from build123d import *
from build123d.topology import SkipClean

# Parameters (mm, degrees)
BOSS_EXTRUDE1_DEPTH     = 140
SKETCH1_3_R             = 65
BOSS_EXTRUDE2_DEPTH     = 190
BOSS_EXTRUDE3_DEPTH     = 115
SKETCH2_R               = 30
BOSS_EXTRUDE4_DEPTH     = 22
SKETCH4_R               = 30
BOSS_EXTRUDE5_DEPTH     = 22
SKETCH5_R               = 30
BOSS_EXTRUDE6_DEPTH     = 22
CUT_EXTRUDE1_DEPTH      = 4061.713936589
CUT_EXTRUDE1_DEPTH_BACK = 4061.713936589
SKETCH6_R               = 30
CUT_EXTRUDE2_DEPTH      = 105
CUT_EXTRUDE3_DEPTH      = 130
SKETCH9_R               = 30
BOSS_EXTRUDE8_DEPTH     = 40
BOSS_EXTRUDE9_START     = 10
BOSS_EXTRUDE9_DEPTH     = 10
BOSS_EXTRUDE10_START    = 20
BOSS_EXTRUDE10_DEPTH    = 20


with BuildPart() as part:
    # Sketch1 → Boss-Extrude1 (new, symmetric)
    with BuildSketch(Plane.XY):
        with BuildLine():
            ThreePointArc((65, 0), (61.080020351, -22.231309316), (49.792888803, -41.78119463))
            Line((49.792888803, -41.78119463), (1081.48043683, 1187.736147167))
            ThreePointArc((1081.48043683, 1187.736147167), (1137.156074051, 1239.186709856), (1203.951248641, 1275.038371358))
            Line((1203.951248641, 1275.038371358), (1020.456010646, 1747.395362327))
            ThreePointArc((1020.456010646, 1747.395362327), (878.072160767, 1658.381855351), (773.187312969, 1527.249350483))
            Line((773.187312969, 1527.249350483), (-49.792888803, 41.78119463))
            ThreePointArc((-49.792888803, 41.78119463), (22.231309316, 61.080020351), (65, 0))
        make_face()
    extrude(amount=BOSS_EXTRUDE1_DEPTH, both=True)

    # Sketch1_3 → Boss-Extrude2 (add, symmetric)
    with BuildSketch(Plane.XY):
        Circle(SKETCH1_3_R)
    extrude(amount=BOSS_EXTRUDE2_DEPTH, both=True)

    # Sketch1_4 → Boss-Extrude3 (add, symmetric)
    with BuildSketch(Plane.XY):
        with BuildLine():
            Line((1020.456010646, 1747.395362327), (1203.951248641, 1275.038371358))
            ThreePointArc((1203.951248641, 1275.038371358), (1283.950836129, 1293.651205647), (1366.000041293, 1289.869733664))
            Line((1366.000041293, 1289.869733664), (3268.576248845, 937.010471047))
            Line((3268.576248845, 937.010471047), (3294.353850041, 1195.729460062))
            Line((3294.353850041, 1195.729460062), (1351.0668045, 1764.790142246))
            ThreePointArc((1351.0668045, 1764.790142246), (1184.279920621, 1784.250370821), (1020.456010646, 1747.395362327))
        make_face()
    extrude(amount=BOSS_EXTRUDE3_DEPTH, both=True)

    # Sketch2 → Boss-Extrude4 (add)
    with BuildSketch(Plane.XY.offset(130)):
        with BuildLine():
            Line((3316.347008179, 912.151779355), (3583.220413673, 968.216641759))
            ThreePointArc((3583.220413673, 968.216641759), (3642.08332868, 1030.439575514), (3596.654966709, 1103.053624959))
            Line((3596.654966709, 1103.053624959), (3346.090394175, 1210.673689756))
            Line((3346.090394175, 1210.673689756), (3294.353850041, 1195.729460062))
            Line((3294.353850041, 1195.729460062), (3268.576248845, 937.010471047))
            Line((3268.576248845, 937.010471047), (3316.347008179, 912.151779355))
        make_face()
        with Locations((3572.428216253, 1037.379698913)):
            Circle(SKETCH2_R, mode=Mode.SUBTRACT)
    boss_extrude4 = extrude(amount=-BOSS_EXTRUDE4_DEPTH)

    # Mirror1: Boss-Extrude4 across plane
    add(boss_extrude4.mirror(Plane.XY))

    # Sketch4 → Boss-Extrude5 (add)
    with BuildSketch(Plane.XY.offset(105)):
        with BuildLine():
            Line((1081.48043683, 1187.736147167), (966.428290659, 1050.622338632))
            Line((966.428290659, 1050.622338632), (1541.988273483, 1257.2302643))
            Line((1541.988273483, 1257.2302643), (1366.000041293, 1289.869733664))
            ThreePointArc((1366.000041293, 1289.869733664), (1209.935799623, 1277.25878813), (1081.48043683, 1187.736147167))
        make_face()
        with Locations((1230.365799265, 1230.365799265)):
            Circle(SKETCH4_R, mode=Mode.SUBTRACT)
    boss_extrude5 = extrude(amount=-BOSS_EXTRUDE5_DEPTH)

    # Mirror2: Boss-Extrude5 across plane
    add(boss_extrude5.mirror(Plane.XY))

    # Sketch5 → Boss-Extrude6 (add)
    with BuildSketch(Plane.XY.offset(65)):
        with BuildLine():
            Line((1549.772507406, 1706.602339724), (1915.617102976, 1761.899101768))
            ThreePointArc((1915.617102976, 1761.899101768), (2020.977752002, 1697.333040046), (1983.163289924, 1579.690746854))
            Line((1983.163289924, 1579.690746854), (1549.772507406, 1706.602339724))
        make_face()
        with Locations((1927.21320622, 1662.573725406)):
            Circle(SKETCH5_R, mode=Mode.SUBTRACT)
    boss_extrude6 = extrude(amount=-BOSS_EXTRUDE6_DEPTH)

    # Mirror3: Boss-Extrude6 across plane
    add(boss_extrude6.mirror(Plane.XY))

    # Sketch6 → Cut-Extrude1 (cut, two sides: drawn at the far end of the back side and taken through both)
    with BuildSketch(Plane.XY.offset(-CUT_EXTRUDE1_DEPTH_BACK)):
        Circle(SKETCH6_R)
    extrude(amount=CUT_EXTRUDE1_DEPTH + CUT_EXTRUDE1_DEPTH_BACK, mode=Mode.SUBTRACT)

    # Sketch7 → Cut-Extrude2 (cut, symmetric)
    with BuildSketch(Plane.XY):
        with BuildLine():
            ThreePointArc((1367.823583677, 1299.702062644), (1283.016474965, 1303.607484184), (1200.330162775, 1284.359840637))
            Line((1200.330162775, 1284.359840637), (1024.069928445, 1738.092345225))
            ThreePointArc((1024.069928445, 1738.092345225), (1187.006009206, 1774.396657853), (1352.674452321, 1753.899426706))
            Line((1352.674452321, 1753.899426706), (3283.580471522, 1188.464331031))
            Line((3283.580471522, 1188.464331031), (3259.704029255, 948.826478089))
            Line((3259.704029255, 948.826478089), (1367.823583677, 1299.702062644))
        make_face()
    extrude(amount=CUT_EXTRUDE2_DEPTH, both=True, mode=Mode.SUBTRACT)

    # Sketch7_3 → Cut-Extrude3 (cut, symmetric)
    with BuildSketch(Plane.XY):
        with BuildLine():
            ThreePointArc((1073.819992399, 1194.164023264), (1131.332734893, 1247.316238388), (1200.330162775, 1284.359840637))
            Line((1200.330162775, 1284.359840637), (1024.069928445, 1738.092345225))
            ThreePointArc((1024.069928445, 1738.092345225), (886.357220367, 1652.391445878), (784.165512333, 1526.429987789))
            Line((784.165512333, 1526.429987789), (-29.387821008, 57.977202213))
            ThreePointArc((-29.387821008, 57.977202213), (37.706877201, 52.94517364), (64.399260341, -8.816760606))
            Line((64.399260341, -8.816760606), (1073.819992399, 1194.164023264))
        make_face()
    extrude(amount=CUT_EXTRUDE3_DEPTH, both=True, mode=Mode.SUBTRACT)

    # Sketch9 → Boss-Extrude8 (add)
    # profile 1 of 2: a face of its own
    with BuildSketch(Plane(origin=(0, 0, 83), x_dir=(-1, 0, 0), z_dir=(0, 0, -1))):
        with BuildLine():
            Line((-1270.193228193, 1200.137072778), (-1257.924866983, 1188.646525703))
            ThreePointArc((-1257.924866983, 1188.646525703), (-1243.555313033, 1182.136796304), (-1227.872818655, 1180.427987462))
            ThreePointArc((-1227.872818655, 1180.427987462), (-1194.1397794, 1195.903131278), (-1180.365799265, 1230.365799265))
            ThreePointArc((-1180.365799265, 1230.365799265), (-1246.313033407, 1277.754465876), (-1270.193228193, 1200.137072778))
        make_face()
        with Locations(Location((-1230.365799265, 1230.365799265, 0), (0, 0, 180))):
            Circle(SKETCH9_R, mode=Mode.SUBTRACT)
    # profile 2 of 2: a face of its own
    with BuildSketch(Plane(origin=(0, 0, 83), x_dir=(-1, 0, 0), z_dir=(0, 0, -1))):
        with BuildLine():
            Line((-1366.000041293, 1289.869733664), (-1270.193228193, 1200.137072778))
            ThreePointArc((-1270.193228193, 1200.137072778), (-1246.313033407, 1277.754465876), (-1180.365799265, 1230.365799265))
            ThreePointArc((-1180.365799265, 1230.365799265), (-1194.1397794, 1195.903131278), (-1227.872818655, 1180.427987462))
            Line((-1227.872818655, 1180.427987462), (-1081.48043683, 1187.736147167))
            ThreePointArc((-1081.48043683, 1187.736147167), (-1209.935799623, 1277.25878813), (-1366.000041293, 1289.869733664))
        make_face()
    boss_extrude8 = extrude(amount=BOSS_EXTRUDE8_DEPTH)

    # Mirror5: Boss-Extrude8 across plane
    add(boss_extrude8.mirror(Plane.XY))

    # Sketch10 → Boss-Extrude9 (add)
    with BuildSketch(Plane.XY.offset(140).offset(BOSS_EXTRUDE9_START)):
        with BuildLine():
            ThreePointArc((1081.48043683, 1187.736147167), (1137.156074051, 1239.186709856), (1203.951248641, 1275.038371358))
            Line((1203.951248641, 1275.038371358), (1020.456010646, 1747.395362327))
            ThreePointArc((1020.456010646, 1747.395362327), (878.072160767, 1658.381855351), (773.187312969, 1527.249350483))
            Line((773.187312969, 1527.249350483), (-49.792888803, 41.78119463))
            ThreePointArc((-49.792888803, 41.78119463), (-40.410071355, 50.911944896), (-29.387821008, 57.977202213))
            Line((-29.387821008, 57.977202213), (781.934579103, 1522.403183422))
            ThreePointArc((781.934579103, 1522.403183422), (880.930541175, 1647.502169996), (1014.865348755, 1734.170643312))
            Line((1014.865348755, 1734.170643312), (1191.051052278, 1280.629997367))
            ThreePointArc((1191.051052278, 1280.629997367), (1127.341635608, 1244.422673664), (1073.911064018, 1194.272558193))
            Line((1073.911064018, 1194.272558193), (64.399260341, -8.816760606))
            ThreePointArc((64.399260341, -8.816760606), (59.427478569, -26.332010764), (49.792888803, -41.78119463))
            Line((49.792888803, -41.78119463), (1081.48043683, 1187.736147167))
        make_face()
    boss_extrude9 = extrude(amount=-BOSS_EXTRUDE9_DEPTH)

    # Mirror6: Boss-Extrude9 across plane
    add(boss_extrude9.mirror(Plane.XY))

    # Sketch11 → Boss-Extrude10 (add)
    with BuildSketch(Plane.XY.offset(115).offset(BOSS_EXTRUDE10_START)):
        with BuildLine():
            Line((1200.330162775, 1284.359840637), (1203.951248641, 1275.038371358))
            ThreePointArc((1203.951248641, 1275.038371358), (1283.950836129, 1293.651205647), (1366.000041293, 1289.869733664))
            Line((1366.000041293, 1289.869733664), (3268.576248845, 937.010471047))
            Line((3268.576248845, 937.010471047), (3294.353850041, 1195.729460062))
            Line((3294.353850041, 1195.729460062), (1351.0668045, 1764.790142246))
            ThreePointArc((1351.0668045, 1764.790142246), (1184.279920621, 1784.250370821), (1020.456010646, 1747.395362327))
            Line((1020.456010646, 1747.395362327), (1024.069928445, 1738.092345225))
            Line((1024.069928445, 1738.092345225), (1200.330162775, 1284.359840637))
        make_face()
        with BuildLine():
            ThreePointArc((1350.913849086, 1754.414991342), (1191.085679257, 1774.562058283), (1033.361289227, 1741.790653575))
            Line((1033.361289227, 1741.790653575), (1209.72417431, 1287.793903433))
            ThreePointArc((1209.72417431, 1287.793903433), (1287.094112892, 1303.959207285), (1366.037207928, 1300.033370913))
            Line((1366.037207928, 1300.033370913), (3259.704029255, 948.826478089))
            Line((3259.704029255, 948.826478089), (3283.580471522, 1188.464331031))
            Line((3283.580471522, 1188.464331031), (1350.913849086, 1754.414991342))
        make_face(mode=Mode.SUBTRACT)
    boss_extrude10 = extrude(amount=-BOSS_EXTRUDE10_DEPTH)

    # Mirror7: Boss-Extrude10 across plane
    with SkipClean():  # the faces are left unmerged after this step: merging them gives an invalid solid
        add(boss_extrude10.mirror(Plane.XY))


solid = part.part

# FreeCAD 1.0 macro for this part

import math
import FreeCAD as App
import Part
import Sketcher

V = App.Vector
Q = App.Units.Quantity

doc = App.newDocument("Part")
body = doc.addObject("PartDesign::Body", "Body")

# Sketch on XY plane
sketch1 = body.newObject("Sketcher::SketchObject", "Sketch")
sketch1.AttachmentSupport = (doc.getObject("XY_Plane"), [""])
sketch1.MapMode = "FlatFace"
sketch1.addGeometry([
    Part.ArcOfCircle(Part.Circle(V(0, 0, 0), V(0, 0, 1), 65), math.radians(-40), math.radians(0)),  # 0
    Part.LineSegment(V(49.792889, -41.781195, 0), V(1081.480437, 1187.736147, 0)),  # 1
    Part.ArcOfCircle(Part.Circle(V(1311.29377, 994.899864, 0), V(0, 0, 1), 300), math.radians(110.965663), math.radians(140)),  # 2
    Part.LineSegment(V(1203.951249, 1275.038371, 0), V(1020.456011, 1747.395362, 0)),  # 3
    Part.ArcOfCircle(Part.Circle(V(1210.55062, 1284.940997, 0), V(0, 0, 1), 500), math.radians(112.345404), math.radians(151.012637)),  # 4
    Part.LineSegment(V(773.187313, 1527.24935, 0), V(-49.792889, 41.781195, 0)),  # 5
    Part.ArcOfCircle(Part.Circle(V(0, 0, 0), V(0, 0, 1), 65), math.radians(0), math.radians(140)),  # 6
], False)
sketch1.addConstraint([
    Sketcher.Constraint("Tangent", 0, 1, 1, 1),
    Sketcher.Constraint("Tangent", 1, 2, 2, 2),
    Sketcher.Constraint("Coincident", 2, 1, 3, 1),
    Sketcher.Constraint("Coincident", 3, 2, 4, 1),
    Sketcher.Constraint("Tangent", 4, 2, 5, 1),
    Sketcher.Constraint("Coincident", 5, 2, 6, 2),
    Sketcher.Constraint("Tangent", 6, 1, 0, 2),
    Sketcher.Constraint("Coincident", 0, 3, -1, 1),
    Sketcher.Constraint("Equal", 0, 6),
    Sketcher.Constraint("PointOnObject", 6, 1, -1),
    Sketcher.Constraint("Radius", 0, Q("65 mm")),
    Sketcher.Constraint("Radius", 2, Q("300 mm")),
    Sketcher.Constraint("Radius", 4, Q("500 mm")),
    Sketcher.Constraint("Angle", 1, Q("50 deg")),
    Sketcher.Constraint("Distance", 1, Q("1605.0209 mm")),
    Sketcher.Constraint("DistanceY", 2, 3, 3, 2, Q("752.495498 mm")),
    Sketcher.Constraint("Distance", 3, Q("506.746119 mm")),
    Sketcher.Constraint("DistanceX", -1, 1, 4, 3, Q("1210.55062 mm")),
    Sketcher.Constraint("DistanceX", -1, 1, 2, 1, Q("1203.951249 mm")),
    Sketcher.Constraint("DistanceX", 5, 2, -1, 1, Q("49.792889 mm")),
])
pad1 = body.newObject("PartDesign::Pad", "Pad")
pad1.Profile = sketch1
pad1.Length = 280
pad1.Midplane = True

# Sketch on XY plane
sketch2 = body.newObject("Sketcher::SketchObject", "Sketch001")
sketch2.AttachmentSupport = (doc.getObject("XY_Plane"), [""])
sketch2.MapMode = "FlatFace"
sketch2.addGeometry(Part.Circle(V(0, 0, 0), V(0, 0, 1), 65), False)
sketch2.addConstraint([
    Sketcher.Constraint("Coincident", 0, 3, -1, 1),
    Sketcher.Constraint("Diameter", 0, Q("130 mm")),
])
pad2 = body.newObject("PartDesign::Pad", "Pad001")
pad2.Profile = sketch2
pad2.Length = 380
pad2.Midplane = True

# Sketch on XY plane
sketch3 = body.newObject("Sketcher::SketchObject", "Sketch002")
sketch3.AttachmentSupport = (doc.getObject("XY_Plane"), [""])
sketch3.MapMode = "FlatFace"
sketch3.addGeometry([
    Part.LineSegment(V(1020.456011, 1747.395362, 0), V(1203.951249, 1275.038371, 0)),  # 0
    Part.ArcOfCircle(Part.Circle(V(1311.29377, 994.899864, 0), V(0, 0, 1), 300), math.radians(79.493082), math.radians(110.965663)),  # 1
    Part.LineSegment(V(1366.000041, 1289.869734, 0), V(3268.576249, 937.010471, 0)),  # 2
    Part.LineSegment(V(3268.576249, 937.010471, 0), V(3294.35385, 1195.72946, 0)),  # 3
    Part.LineSegment(V(3294.35385, 1195.72946, 0), V(1351.066804, 1764.790142, 0)),  # 4
    Part.ArcOfCircle(Part.Circle(V(1210.55062, 1284.940997, 0), V(0, 0, 1), 500), math.radians(73.678171), math.radians(112.345404)),  # 5
], False)
sketch3.addConstraint([
    Sketcher.Constraint("Coincident", 0, 2, 1, 2),
    Sketcher.Constraint("Tangent", 1, 1, 2, 1),
    Sketcher.Constraint("Coincident", 2, 2, 3, 1),
    Sketcher.Constraint("Coincident", 3, 2, 4, 1),
    Sketcher.Constraint("Tangent", 4, 2, 5, 1),
    Sketcher.Constraint("Coincident", 5, 2, 0, 1),
    Sketcher.Constraint("Radius", 1, Q("300 mm")),
    Sketcher.Constraint("Radius", 5, Q("500 mm")),
    Sketcher.Constraint("Distance", 3, Q("260 mm")),
    Sketcher.Constraint("DistanceX", 0, 2, 2, 2, Q("2064.625 mm")),
    Sketcher.Constraint("Distance", 2, Q("1935.0209 mm")),
    Sketcher.Constraint("DistanceY", 2, 2, 0, 2, Q("338.0279 mm")),
    Sketcher.Constraint("DistanceX", 2, 2, 3, 2, Q("25.777601 mm")),
    Sketcher.Constraint("DistanceY", 1, 3, 5, 2, Q("752.495498 mm")),
    Sketcher.Constraint("Distance", 0, Q("506.746119 mm")),
    Sketcher.Constraint("DistanceX", -1, 1, 1, 3, Q("1311.29377 mm")),
    Sketcher.Constraint("DistanceX", -1, 1, 5, 3, Q("1210.55062 mm")),
    Sketcher.Constraint("DistanceY", -1, 1, 0, 2, Q("1275.038371 mm")),
])
pad3 = body.newObject("PartDesign::Pad", "Pad002")
pad3.Profile = sketch3
pad3.Length = 230
pad3.Midplane = True

# Sketch on XY plane
sketch4 = body.newObject("Sketcher::SketchObject", "Sketch003")
sketch4.AttachmentSupport = (doc.getObject("XY_Plane"), [""])
sketch4.MapMode = "FlatFace"
sketch4.AttachmentOffset = App.Placement(V(0, 0, 130), App.Rotation())
sketch4.addGeometry([
    Part.LineSegment(V(3316.347008, 912.151779, 0), V(3583.220414, 968.216642, 0)),  # 0
    Part.ArcOfCircle(Part.Circle(V(3572.428216, 1037.379699, 0), V(0, 0, 1), 70), math.radians(-81.131091), math.radians(69.751259)),  # 1
    Part.LineSegment(V(3596.654967, 1103.053625, 0), V(3346.090394, 1210.67369, 0)),  # 2
    Part.LineSegment(V(3346.090394, 1210.67369, 0), V(3294.35385, 1195.72946, 0)),  # 3
    Part.LineSegment(V(3294.35385, 1195.72946, 0), V(3268.576249, 937.010471, 0)),  # 4
    Part.LineSegment(V(3268.576249, 937.010471, 0), V(3316.347008, 912.151779, 0)),  # 5
    Part.Circle(V(3572.428216, 1037.379699, 0), V(0, 0, 1), 30),  # 6
], False)
sketch4.addConstraint([
    Sketcher.Constraint("Coincident", 0, 2, 1, 1),
    Sketcher.Constraint("Coincident", 1, 2, 2, 1),
    Sketcher.Constraint("Coincident", 2, 2, 3, 1),
    Sketcher.Constraint("Coincident", 3, 2, 4, 1),
    Sketcher.Constraint("Coincident", 4, 2, 5, 1),
    Sketcher.Constraint("Coincident", 5, 2, 0, 1),
    Sketcher.Constraint("Coincident", 6, 3, 1, 3),
    Sketcher.Constraint("Equal", 0, 2),
    Sketcher.Constraint("Equal", 3, 5),
    Sketcher.Constraint("Diameter", 6, Q("60 mm")),
    Sketcher.Constraint("Radius", 1, Q("70 mm")),
    Sketcher.Constraint("Distance", 4, Q("260 mm")),
    Sketcher.Constraint("DistanceY", -1, 1, 1, 3, Q("1037.379699 mm")),
    Sketcher.Constraint("DistanceX", 4, 2, 3, 2, Q("25.777601 mm")),
    Sketcher.Constraint("Distance", 3, Q("53.851648 mm")),
    Sketcher.Constraint("DistanceY", -1, 1, 0, 2, Q("968.216642 mm")),
    Sketcher.Constraint("DistanceY", -1, 1, 2, 2, Q("1210.67369 mm")),
    Sketcher.Constraint("DistanceX", -1, 1, 3, 2, Q("3294.35385 mm")),
    Sketcher.Constraint("DistanceY", -1, 1, 3, 2, Q("1195.72946 mm")),
    Sketcher.Constraint("DistanceX", -1, 1, 5, 2, Q("3316.347008 mm")),
    Sketcher.Constraint("DistanceX", 2, 2, 0, 2, Q("237.130019 mm")),
])
pad4 = body.newObject("PartDesign::Pad", "Pad003")
pad4.Profile = sketch4
pad4.Length = 22
pad4.Reversed = True
doc.recompute()

mirrored = body.newObject("PartDesign::Mirrored", "Mirrored")
mirrored.Originals = [pad4]
mirrored.MirrorPlane = (doc.getObject("XY_Plane"), [""])
body.Tip = mirrored

# Sketch on XY plane
sketch5 = body.newObject("Sketcher::SketchObject", "Sketch004")
sketch5.AttachmentSupport = (doc.getObject("XY_Plane"), [""])
sketch5.MapMode = "FlatFace"
sketch5.AttachmentOffset = App.Placement(V(0, 0, 105), App.Rotation())
sketch5.addGeometry([
    Part.LineSegment(V(1081.480437, 1187.736147, 0), V(966.428291, 1050.622339, 0)),  # 0
    Part.LineSegment(V(966.428291, 1050.622339, 0), V(1541.988273, 1257.230264, 0)),  # 1
    Part.LineSegment(V(1541.988273, 1257.230264, 0), V(1366.000041, 1289.869734, 0)),  # 2
    Part.ArcOfCircle(Part.Circle(V(1311.29377, 994.899864, 0), V(0, 0, 1), 300), math.radians(79.493082), math.radians(140)),  # 3
    Part.Circle(V(1230.365799, 1230.365799, 0), V(0, 0, 1), 30),  # 4
], False)
sketch5.addConstraint([
    Sketcher.Constraint("Coincident", 0, 2, 1, 1),
    Sketcher.Constraint("Coincident", 1, 2, 2, 1),
    Sketcher.Constraint("Tangent", 2, 2, 3, 1),
    Sketcher.Constraint("Tangent", 3, 2, 0, 1),
    Sketcher.Constraint("Equal", 0, 2),
    Sketcher.Constraint("Diameter", 4, Q("60 mm")),
    Sketcher.Constraint("Radius", 3, Q("300 mm")),
    Sketcher.Constraint("Angle", 0, Q("-130 deg")),
    Sketcher.Constraint("DistanceX", -1, 1, 4, 3, Q("1230.365799 mm")),
    Sketcher.Constraint("DistanceY", -1, 1, 4, 3, Q("1230.365799 mm")),
    Sketcher.Constraint("DistanceY", 3, 3, 1, 2, Q("262.3304 mm")),
    Sketcher.Constraint("DistanceX", -1, 1, 3, 3, Q("1311.29377 mm")),
    Sketcher.Constraint("DistanceX", -1, 1, 0, 2, Q("966.428291 mm")),
    Sketcher.Constraint("DistanceY", -1, 1, 0, 2, Q("1050.622339 mm")),
])
pad5 = body.newObject("PartDesign::Pad", "Pad004")
pad5.Profile = sketch5
pad5.Length = 22
pad5.Reversed = True
doc.recompute()

mirrored2 = body.newObject("PartDesign::Mirrored", "Mirrored001")
mirrored2.Originals = [pad5]
mirrored2.MirrorPlane = (doc.getObject("XY_Plane"), [""])
body.Tip = mirrored2

# Sketch on XY plane
sketch6 = body.newObject("Sketcher::SketchObject", "Sketch005")
sketch6.AttachmentSupport = (doc.getObject("XY_Plane"), [""])
sketch6.MapMode = "FlatFace"
sketch6.AttachmentOffset = App.Placement(V(0, 0, 65), App.Rotation())
sketch6.addGeometry([
    Part.LineSegment(V(1915.617103, 1761.899102, 0), V(1549.772507, 1706.60234, 0)),
    Part.LineSegment(V(1549.772507, 1706.60234, 0), V(1983.16329, 1579.690747, 0)),
    Part.ArcOfCircle(Part.Circle(V(1927.213206, 1662.573725, 0), V(0, 0, 1), 100), math.radians(-55.978716), math.radians(96.659059)),
    Part.Circle(V(1927.213206, 1662.573725, 0), V(0, 0, 1), 30),
], False)
sketch6.addConstraint([
    Sketcher.Constraint("Coincident", 0, 2, 1, 1),
    Sketcher.Constraint("Coincident", 1, 2, 2, 1),
    Sketcher.Constraint("Coincident", 2, 2, 0, 1),
    Sketcher.Constraint("Coincident", 3, 3, 2, 3),
    Sketcher.Constraint("Diameter", 3, Q("60 mm")),
    Sketcher.Constraint("Radius", 2, Q("100 mm")),
    Sketcher.Constraint("Distance", 0, Q("370 mm")),
    Sketcher.Constraint("DistanceY", -1, 1, 2, 2, Q("1761.899102 mm")),
    Sketcher.Constraint("DistanceX", 0, 2, 3, 3, Q("377.440699 mm")),
    Sketcher.Constraint("Distance", 1, Q("451.590658 mm")),
    Sketcher.Constraint("DistanceY", -1, 1, 0, 2, Q("1706.60234 mm")),
    Sketcher.Constraint("DistanceX", -1, 1, 1, 2, Q("1983.16329 mm")),
])
pad6 = body.newObject("PartDesign::Pad", "Pad005")
pad6.Profile = sketch6
pad6.Length = 22
pad6.Reversed = True
doc.recompute()

mirrored3 = body.newObject("PartDesign::Mirrored", "Mirrored002")
mirrored3.Originals = [pad6]
mirrored3.MirrorPlane = (doc.getObject("XY_Plane"), [""])
body.Tip = mirrored3

# Sketch on XY plane
sketch7 = body.newObject("Sketcher::SketchObject", "Sketch006")
sketch7.AttachmentSupport = (doc.getObject("XY_Plane"), [""])
sketch7.MapMode = "FlatFace"
sketch7.addGeometry(Part.Circle(V(0, 0, 0), V(0, 0, 1), 30), False)
sketch7.addConstraint([
    Sketcher.Constraint("Coincident", 0, 3, -1, 1),
    Sketcher.Constraint("Diameter", 0, Q("60 mm")),
])
pocket1 = body.newObject("PartDesign::Pocket", "Pocket")
pocket1.Profile = sketch7
pocket1.Type = "ThroughAll"
pocket1.Midplane = True

# Sketch on XY plane
sketch8 = body.newObject("Sketcher::SketchObject", "Sketch007")
sketch8.AttachmentSupport = (doc.getObject("XY_Plane"), [""])
sketch8.MapMode = "FlatFace"
sketch8.addGeometry([
    Part.ArcOfCircle(Part.Circle(V(1311.29377, 994.899864, 0), V(0, 0, 1), 310), math.radians(79.493082), math.radians(110.974175)),  # 0
    Part.LineSegment(V(1367.823584, 1299.702063, 0), V(3259.704029, 948.826478, 0)),  # 1
    Part.LineSegment(V(3259.704029, 948.826478, 0), V(3283.580472, 1188.464331, 0)),  # 2
    Part.LineSegment(V(3283.580472, 1188.464331, 0), V(1352.674452, 1753.899427, 0)),  # 3
    Part.ArcOfCircle(Part.Circle(V(1210.55062, 1284.940997, 0), V(0, 0, 1), 490.021624), math.radians(73.139898), math.radians(112.36813)),  # 4
    Part.LineSegment(V(1024.069928, 1738.092345, 0), V(1200.330163, 1284.359841, 0)),  # 5
], False)
sketch8.addConstraint([
    Sketcher.Constraint("Tangent", 0, 1, 1, 1),
    Sketcher.Constraint("Coincident", 1, 2, 2, 1),
    Sketcher.Constraint("Coincident", 2, 2, 3, 1),
    Sketcher.Constraint("Coincident", 3, 2, 4, 1),
    Sketcher.Constraint("Coincident", 4, 2, 5, 1),
    Sketcher.Constraint("Coincident", 5, 2, 0, 2),
    Sketcher.Constraint("Radius", 0, Q("310 mm")),
    Sketcher.Constraint("Radius", 4, Q("490.021624 mm")),
    Sketcher.Constraint("DistanceX", 0, 3, 2, 2, Q("1972.286702 mm")),
    Sketcher.Constraint("Distance", 3, Q("2011.992769 mm")),
    Sketcher.Constraint("Distance", 5, Q("486.765709 mm")),
    Sketcher.Constraint("DistanceX", -1, 1, 0, 3, Q("1311.29377 mm")),
    Sketcher.Constraint("DistanceX", -1, 1, 4, 3, Q("1210.55062 mm")),
    Sketcher.Constraint("DistanceX", -1, 1, 1, 2, Q("3259.704029 mm")),
    Sketcher.Constraint("DistanceY", -1, 1, 1, 2, Q("948.826478 mm")),
    Sketcher.Constraint("DistanceY", -1, 1, 2, 2, Q("1188.464331 mm")),
    Sketcher.Constraint("DistanceX", -1, 1, 4, 2, Q("1024.069928 mm")),
    Sketcher.Constraint("DistanceY", -1, 1, 5, 2, Q("1284.359841 mm")),
    Sketcher.Constraint("DistanceY", 1, 2, 4, 3, Q("336.114519 mm")),
])
pocket2 = body.newObject("PartDesign::Pocket", "Pocket001")
pocket2.Profile = sketch8
pocket2.Length = 210
pocket2.Midplane = True

# Sketch on XY plane
sketch9 = body.newObject("Sketcher::SketchObject", "Sketch008")
sketch9.AttachmentSupport = (doc.getObject("XY_Plane"), [""])
sketch9.MapMode = "FlatFace"
sketch9.addGeometry([
    Part.ArcOfCircle(Part.Circle(V(1311.29377, 994.899864, 0), V(0, 0, 1), 310), math.radians(110.974175), math.radians(140)),  # 0
    Part.LineSegment(V(1200.330163, 1284.359841, 0), V(1024.069928, 1738.092345, 0)),  # 1
    Part.ArcOfCircle(Part.Circle(V(1210.55062, 1284.940997, 0), V(0, 0, 1), 490.021624), math.radians(112.36813), math.radians(150.474365)),  # 2
    Part.LineSegment(V(784.165512, 1526.429988, 0), V(-29.387821, 57.977202, 0)),  # 3
    Part.ArcOfCircle(Part.Circle(V(0, 0, 0), V(0, 0, 1), 65), math.radians(-7.795772), math.radians(116.879803)),  # 4
    Part.LineSegment(V(64.39926, -8.816761, 0), V(1073.819992, 1194.164023, 0)),  # 5
], False)
sketch9.addConstraint([
    Sketcher.Constraint("Coincident", 0, 1, 1, 1),
    Sketcher.Constraint("Coincident", 1, 2, 2, 1),
    Sketcher.Constraint("Coincident", 2, 2, 3, 1),
    Sketcher.Constraint("Coincident", 3, 2, 4, 2),
    Sketcher.Constraint("Coincident", 4, 1, 5, 1),
    Sketcher.Constraint("Tangent", 5, 2, 0, 2),
    Sketcher.Constraint("Coincident", 4, 3, -1, 1),
    Sketcher.Constraint("Radius", 0, Q("310 mm")),
    Sketcher.Constraint("Radius", 4, Q("65 mm")),
    Sketcher.Constraint("Angle", 5, Q("50 deg")),
    Sketcher.Constraint("Radius", 2, Q("490.021624 mm")),
    Sketcher.Constraint("DistanceY", 4, 1, 0, 1, Q("1293.176601 mm")),
    Sketcher.Constraint("Distance", 1, Q("486.765709 mm")),
    Sketcher.Constraint("Distance", 3, Q("1678.756269 mm")),
    Sketcher.Constraint("DistanceX", -1, 1, 0, 3, Q("1311.29377 mm")),
    Sketcher.Constraint("DistanceX", -1, 1, 2, 3, Q("1210.55062 mm")),
    Sketcher.Constraint("DistanceY", -1, 1, 0, 1, Q("1284.359841 mm")),
    Sketcher.Constraint("DistanceX", -1, 1, 1, 2, Q("1024.069928 mm")),
    Sketcher.Constraint("DistanceX", 3, 2, -1, 1, Q("29.387821 mm")),
])
pocket3 = body.newObject("PartDesign::Pocket", "Pocket002")
pocket3.Profile = sketch9
pocket3.Length = 260
pocket3.Midplane = True

# Sketch on XY plane
sketch10 = body.newObject("Sketcher::SketchObject", "Sketch009")
sketch10.AttachmentSupport = (doc.getObject("XY_Plane"), [""])
sketch10.MapMode = "FlatFace"
sketch10.AttachmentOffset = App.Placement(V(0, 0, 83), App.Rotation())
sketch10.addGeometry([
    Part.LineSegment(V(1270.193228, 1200.137073, 0), V(1257.924867, 1188.646526, 0)),  # 0
    Part.ArcOfCircle(Part.Circle(V(1230.365799, 1230.365799, 0), V(0, 0, 1), 50), math.radians(-92.85793), math.radians(-56.551903)),  # 1
    Part.LineSegment(V(1227.872819, 1180.427987, 0), V(1081.480437, 1187.736147, 0)),  # 2
    Part.ArcOfCircle(Part.Circle(V(1311.29377, 994.899864, 0), V(0, 0, 1), 300), math.radians(79.493082), math.radians(140)),  # 3
    Part.LineSegment(V(1366.000041, 1289.869734, 0), V(1270.193228, 1200.137073, 0)),  # 4
    Part.Circle(V(1230.365799, 1230.365799, 0), V(0, 0, 1), 30),  # 5
], False)
sketch10.addConstraint([
    Sketcher.Constraint("Coincident", 0, 2, 1, 2),
    Sketcher.Constraint("Tangent", 1, 1, 2, 1),
    Sketcher.Constraint("Coincident", 2, 2, 3, 2),
    Sketcher.Constraint("Coincident", 3, 1, 4, 1),
    Sketcher.Constraint("Coincident", 4, 2, 0, 1),
    Sketcher.Constraint("Coincident", 5, 3, 1, 3),
    Sketcher.Constraint("Parallel", 0, 4),
    Sketcher.Constraint("Diameter", 5, Q("60 mm")),
    Sketcher.Constraint("Radius", 1, Q("50 mm")),
    Sketcher.Constraint("Radius", 3, Q("300 mm")),
    Sketcher.Constraint("DistanceX", -1, 1, 1, 3, Q("1230.365799 mm")),
    Sketcher.Constraint("DistanceY", -1, 1, 1, 3, Q("1230.365799 mm")),
    Sketcher.Constraint("DistanceX", -1, 1, 3, 3, Q("1311.29377 mm")),
    Sketcher.Constraint("DistanceX", -1, 1, 1, 1, Q("1227.872819 mm")),
    Sketcher.Constraint("DistanceX", -1, 1, 3, 1, Q("1366.000041 mm")),
    Sketcher.Constraint("DistanceX", -1, 1, 4, 2, Q("1270.193228 mm")),
    Sketcher.Constraint("DistanceY", 3, 3, 0, 2, Q("193.746661 mm")),
    Sketcher.Constraint("DistanceX", 1, 1, 0, 2, Q("30.052048 mm")),
])
pad7 = body.newObject("PartDesign::Pad", "Pad006")
pad7.Profile = sketch10
pad7.Length = 40
pad7.Reversed = True
doc.recompute()

mirrored4 = body.newObject("PartDesign::Mirrored", "Mirrored003")
mirrored4.Originals = [pad7]
mirrored4.MirrorPlane = (doc.getObject("XY_Plane"), [""])
body.Tip = mirrored4

# Sketch on XY plane
sketch11 = body.newObject("Sketcher::SketchObject", "Sketch010")
sketch11.AttachmentSupport = (doc.getObject("XY_Plane"), [""])
sketch11.MapMode = "FlatFace"
sketch11.AttachmentOffset = App.Placement(V(0, 0, 150), App.Rotation())
sketch11.addGeometry([
    Part.ArcOfCircle(Part.Circle(V(1311.29377, 994.899864, 0), V(0, 0, 1), 300), math.radians(110.965663), math.radians(140)),  # 0
    Part.LineSegment(V(1203.951249, 1275.038371, 0), V(1020.456011, 1747.395362, 0)),  # 1
    Part.ArcOfCircle(Part.Circle(V(1210.55062, 1284.940997, 0), V(0, 0, 1), 500), math.radians(112.345404), math.radians(151.012637)),  # 2
    Part.LineSegment(V(773.187313, 1527.24935, 0), V(-49.792889, 41.781195, 0)),  # 3
    Part.ArcOfCircle(Part.Circle(V(0, 0, 0), V(0, 0, 1), 65), math.radians(116.879803), math.radians(140)),  # 4
    Part.LineSegment(V(-29.387821, 57.977202, 0), V(781.934579, 1522.403183, 0)),  # 5
    Part.ArcOfCircle(Part.Circle(V(1210.55062, 1284.940997, 0), V(0, 0, 1), 490), math.radians(113.538031), math.radians(151.012637)),  # 6
    Part.LineSegment(V(1014.865349, 1734.170643, 0), V(1191.051052, 1280.629997, 0)),  # 7
    Part.ArcOfCircle(Part.Circle(V(1311.29377, 994.899864, 0), V(0, 0, 1), 310.000032), math.radians(112.822632), math.radians(139.973814)),  # 8
    Part.LineSegment(V(1073.911064, 1194.272558, 0), V(64.39926, -8.816761, 0)),  # 9
    Part.ArcOfCircle(Part.Circle(V(0, 0, 0), V(0, 0, 1), 65), math.radians(-40), math.radians(-7.795773)),  # 10
    Part.LineSegment(V(49.792889, -41.781195, 0), V(1081.480437, 1187.736147, 0)),  # 11
], False)
sketch11.addConstraint([
    Sketcher.Constraint("Coincident", 0, 1, 1, 1),
    Sketcher.Constraint("Coincident", 1, 2, 2, 1),
    Sketcher.Constraint("Tangent", 2, 2, 3, 1),
    Sketcher.Constraint("Coincident", 3, 2, 4, 2),
    Sketcher.Constraint("Coincident", 4, 1, 5, 1),
    Sketcher.Constraint("Tangent", 5, 2, 6, 2),
    Sketcher.Constraint("Coincident", 6, 1, 7, 1),
    Sketcher.Constraint("Coincident", 7, 2, 8, 1),
    Sketcher.Constraint("Coincident", 8, 2, 9, 1),
    Sketcher.Constraint("Coincident", 9, 2, 10, 2),
    Sketcher.Constraint("Tangent", 10, 1, 11, 1),
    Sketcher.Constraint("Tangent", 11, 2, 0, 2),
    Sketcher.Constraint("Coincident", 4, 3, -1, 1),
    Sketcher.Constraint("Coincident", 10, 3, -1, 1),
    Sketcher.Constraint("Coincident", 6, 3, 2, 3),
    Sketcher.Constraint("Coincident", 8, 3, 0, 3),
    Sketcher.Constraint("Equal", 4, 10),
    Sketcher.Constraint("Parallel", 3, 5),
    Sketcher.Constraint("Parallel", 1, 7),
    Sketcher.Constraint("Parallel", 9, 11),
    Sketcher.Constraint("Radius", 0, Q("300 mm")),
    Sketcher.Constraint("Radius", 2, Q("500 mm")),
    Sketcher.Constraint("Radius", 4, Q("65 mm")),
    Sketcher.Constraint("Radius", 6, Q("490 mm")),
    Sketcher.Constraint("Angle", 9, Q("-130 deg")),
    Sketcher.Constraint("Radius", 8, Q("310.000032 mm")),
    Sketcher.Constraint("DistanceY", 7, 2, 6, 3, Q("4.311 mm")),
    Sketcher.Constraint("Distance", 11, Q("1605.0209 mm")),
    Sketcher.Constraint("DistanceY", 8, 3, 1, 2, Q("752.495498 mm")),
    Sketcher.Constraint("DistanceX", 3, 2, 2, 2, Q("822.980202 mm")),
    Sketcher.Constraint("Distance", 1, Q("506.746119 mm")),
    Sketcher.Constraint("Distance", 5, Q("1674.152768 mm")),
    Sketcher.Constraint("DistanceX", -1, 1, 2, 3, Q("1210.55062 mm")),
    Sketcher.Constraint("DistanceY", -1, 1, 8, 2, Q("1194.272558 mm")),
])
pad8 = body.newObject("PartDesign::Pad", "Pad007")
pad8.Profile = sketch11
pad8.Length = 10
pad8.Reversed = True
doc.recompute()

mirrored5 = body.newObject("PartDesign::Mirrored", "Mirrored004")
mirrored5.Originals = [pad8]
mirrored5.MirrorPlane = (doc.getObject("XY_Plane"), [""])
body.Tip = mirrored5

# Sketch on XY plane
sketch12 = body.newObject("Sketcher::SketchObject", "Sketch011")
sketch12.AttachmentSupport = (doc.getObject("XY_Plane"), [""])
sketch12.MapMode = "FlatFace"
sketch12.AttachmentOffset = App.Placement(V(0, 0, 135), App.Rotation())
sketch12.addGeometry([
    Part.LineSegment(V(1200.330163, 1284.359841, 0), V(1203.951249, 1275.038371, 0)),  # 0
    Part.ArcOfCircle(Part.Circle(V(1311.29377, 994.899864, 0), V(0, 0, 1), 300), math.radians(79.493082), math.radians(110.965663)),  # 1
    Part.LineSegment(V(1366.000041, 1289.869734, 0), V(3268.576249, 937.010471, 0)),  # 2
    Part.LineSegment(V(3268.576249, 937.010471, 0), V(3294.35385, 1195.72946, 0)),  # 3
    Part.LineSegment(V(3294.35385, 1195.72946, 0), V(1351.066804, 1764.790142, 0)),  # 4
    Part.ArcOfCircle(Part.Circle(V(1210.55062, 1284.940997, 0), V(0, 0, 1), 500), math.radians(73.678171), math.radians(112.345404)),  # 5
    Part.LineSegment(V(1020.456011, 1747.395362, 0), V(1024.069928, 1738.092345, 0)),  # 6
    Part.LineSegment(V(1024.069928, 1738.092345, 0), V(1200.330163, 1284.359841, 0)),  # 7
    Part.ArcOfCircle(Part.Circle(V(1210.55062, 1284.940997, 0), V(0, 0, 1), 490.007824), math.radians(73.354399), math.radians(111.198804)),  # 8
    Part.LineSegment(V(1350.913849, 1754.414991, 0), V(3283.580472, 1188.464331, 0)),  # 9
    Part.LineSegment(V(3283.580472, 1188.464331, 0), V(3259.704029, 948.826478, 0)),  # 10
    Part.LineSegment(V(3259.704029, 948.826478, 0), V(1366.037208, 1300.033371, 0)),  # 11
    Part.ArcOfCircle(Part.Circle(V(1311.29377, 994.899864, 0), V(0, 0, 1), 310.005324), math.radians(79.828876), math.radians(109.125488)),  # 12
    Part.LineSegment(V(1209.724174, 1287.793903, 0), V(1033.361289, 1741.790654, 0)),  # 13
], False)
sketch12.addConstraint([
    Sketcher.Constraint("Coincident", 0, 2, 1, 2),
    Sketcher.Constraint("Tangent", 1, 1, 2, 1),
    Sketcher.Constraint("Coincident", 2, 2, 3, 1),
    Sketcher.Constraint("Coincident", 3, 2, 4, 1),
    Sketcher.Constraint("Tangent", 4, 2, 5, 1),
    Sketcher.Constraint("Coincident", 5, 2, 6, 1),
    Sketcher.Constraint("Coincident", 6, 2, 7, 1),
    Sketcher.Constraint("Coincident", 7, 2, 0, 1),
    Sketcher.Constraint("Coincident", 8, 1, 9, 1),
    Sketcher.Constraint("Coincident", 9, 2, 10, 1),
    Sketcher.Constraint("Coincident", 10, 2, 11, 1),
    Sketcher.Constraint("Coincident", 11, 2, 12, 1),
    Sketcher.Constraint("Coincident", 12, 2, 13, 1),
    Sketcher.Constraint("Coincident", 13, 2, 8, 2),
    Sketcher.Constraint("Coincident", 8, 3, 5, 3),
    Sketcher.Constraint("Coincident", 12, 3, 1, 3),
    Sketcher.Constraint("Parallel", 0, 6),
    Sketcher.Constraint("Parallel", 6, 7),
    Sketcher.Constraint("Parallel", 4, 9),
    Sketcher.Constraint("Parallel", 3, 10),
    Sketcher.Constraint("Parallel", 2, 11),
    Sketcher.Constraint("Parallel", 7, 13),
    Sketcher.Constraint("Radius", 1, Q("300 mm")),
    Sketcher.Constraint("Radius", 5, Q("500 mm")),
    Sketcher.Constraint("Distance", 3, Q("260 mm")),
    Sketcher.Constraint("Radius", 8, Q("490.007824 mm")),
    Sketcher.Constraint("Radius", 12, Q("310.005324 mm")),
    Sketcher.Constraint("DistanceY", 0, 2, 11, 2, Q("24.995 mm")),
    Sketcher.Constraint("Distance", 2, Q("1935.0209 mm")),
    Sketcher.Constraint("DistanceX", 2, 2, 3, 2, Q("25.777601 mm")),
    Sketcher.Constraint("DistanceX", 1, 3, 9, 2, Q("1972.286702 mm")),
    Sketcher.Constraint("Distance", 7, Q("486.765709 mm")),
    Sketcher.Constraint("DistanceX", -1, 1, 1, 3, Q("1311.29377 mm")),
    Sketcher.Constraint("DistanceX", -1, 1, 5, 3, Q("1210.55062 mm")),
    Sketcher.Constraint("DistanceX", -1, 1, 0, 2, Q("1203.951249 mm")),
    Sketcher.Constraint("DistanceY", -1, 1, 0, 2, Q("1275.038371 mm")),
    Sketcher.Constraint("DistanceX", -1, 1, 2, 2, Q("3268.576249 mm")),
    Sketcher.Constraint("DistanceX", -1, 1, 6, 2, Q("1024.069928 mm")),
    Sketcher.Constraint("DistanceY", -1, 1, 7, 2, Q("1284.359841 mm")),
    Sketcher.Constraint("DistanceX", -1, 1, 8, 1, Q("1350.913849 mm")),
    Sketcher.Constraint("DistanceY", -1, 1, 8, 1, Q("1754.414991 mm")),
    Sketcher.Constraint("DistanceX", -1, 1, 13, 2, Q("1033.361289 mm")),
])
pad9 = body.newObject("PartDesign::Pad", "Pad008")
pad9.Profile = sketch12
pad9.Length = 20
pad9.Reversed = True
doc.recompute()

mirrored6 = body.newObject("PartDesign::Mirrored", "Mirrored005")
mirrored6.Originals = [pad9]
mirrored6.MirrorPlane = (doc.getObject("XY_Plane"), [""])
body.Tip = mirrored6

doc.recompute()
